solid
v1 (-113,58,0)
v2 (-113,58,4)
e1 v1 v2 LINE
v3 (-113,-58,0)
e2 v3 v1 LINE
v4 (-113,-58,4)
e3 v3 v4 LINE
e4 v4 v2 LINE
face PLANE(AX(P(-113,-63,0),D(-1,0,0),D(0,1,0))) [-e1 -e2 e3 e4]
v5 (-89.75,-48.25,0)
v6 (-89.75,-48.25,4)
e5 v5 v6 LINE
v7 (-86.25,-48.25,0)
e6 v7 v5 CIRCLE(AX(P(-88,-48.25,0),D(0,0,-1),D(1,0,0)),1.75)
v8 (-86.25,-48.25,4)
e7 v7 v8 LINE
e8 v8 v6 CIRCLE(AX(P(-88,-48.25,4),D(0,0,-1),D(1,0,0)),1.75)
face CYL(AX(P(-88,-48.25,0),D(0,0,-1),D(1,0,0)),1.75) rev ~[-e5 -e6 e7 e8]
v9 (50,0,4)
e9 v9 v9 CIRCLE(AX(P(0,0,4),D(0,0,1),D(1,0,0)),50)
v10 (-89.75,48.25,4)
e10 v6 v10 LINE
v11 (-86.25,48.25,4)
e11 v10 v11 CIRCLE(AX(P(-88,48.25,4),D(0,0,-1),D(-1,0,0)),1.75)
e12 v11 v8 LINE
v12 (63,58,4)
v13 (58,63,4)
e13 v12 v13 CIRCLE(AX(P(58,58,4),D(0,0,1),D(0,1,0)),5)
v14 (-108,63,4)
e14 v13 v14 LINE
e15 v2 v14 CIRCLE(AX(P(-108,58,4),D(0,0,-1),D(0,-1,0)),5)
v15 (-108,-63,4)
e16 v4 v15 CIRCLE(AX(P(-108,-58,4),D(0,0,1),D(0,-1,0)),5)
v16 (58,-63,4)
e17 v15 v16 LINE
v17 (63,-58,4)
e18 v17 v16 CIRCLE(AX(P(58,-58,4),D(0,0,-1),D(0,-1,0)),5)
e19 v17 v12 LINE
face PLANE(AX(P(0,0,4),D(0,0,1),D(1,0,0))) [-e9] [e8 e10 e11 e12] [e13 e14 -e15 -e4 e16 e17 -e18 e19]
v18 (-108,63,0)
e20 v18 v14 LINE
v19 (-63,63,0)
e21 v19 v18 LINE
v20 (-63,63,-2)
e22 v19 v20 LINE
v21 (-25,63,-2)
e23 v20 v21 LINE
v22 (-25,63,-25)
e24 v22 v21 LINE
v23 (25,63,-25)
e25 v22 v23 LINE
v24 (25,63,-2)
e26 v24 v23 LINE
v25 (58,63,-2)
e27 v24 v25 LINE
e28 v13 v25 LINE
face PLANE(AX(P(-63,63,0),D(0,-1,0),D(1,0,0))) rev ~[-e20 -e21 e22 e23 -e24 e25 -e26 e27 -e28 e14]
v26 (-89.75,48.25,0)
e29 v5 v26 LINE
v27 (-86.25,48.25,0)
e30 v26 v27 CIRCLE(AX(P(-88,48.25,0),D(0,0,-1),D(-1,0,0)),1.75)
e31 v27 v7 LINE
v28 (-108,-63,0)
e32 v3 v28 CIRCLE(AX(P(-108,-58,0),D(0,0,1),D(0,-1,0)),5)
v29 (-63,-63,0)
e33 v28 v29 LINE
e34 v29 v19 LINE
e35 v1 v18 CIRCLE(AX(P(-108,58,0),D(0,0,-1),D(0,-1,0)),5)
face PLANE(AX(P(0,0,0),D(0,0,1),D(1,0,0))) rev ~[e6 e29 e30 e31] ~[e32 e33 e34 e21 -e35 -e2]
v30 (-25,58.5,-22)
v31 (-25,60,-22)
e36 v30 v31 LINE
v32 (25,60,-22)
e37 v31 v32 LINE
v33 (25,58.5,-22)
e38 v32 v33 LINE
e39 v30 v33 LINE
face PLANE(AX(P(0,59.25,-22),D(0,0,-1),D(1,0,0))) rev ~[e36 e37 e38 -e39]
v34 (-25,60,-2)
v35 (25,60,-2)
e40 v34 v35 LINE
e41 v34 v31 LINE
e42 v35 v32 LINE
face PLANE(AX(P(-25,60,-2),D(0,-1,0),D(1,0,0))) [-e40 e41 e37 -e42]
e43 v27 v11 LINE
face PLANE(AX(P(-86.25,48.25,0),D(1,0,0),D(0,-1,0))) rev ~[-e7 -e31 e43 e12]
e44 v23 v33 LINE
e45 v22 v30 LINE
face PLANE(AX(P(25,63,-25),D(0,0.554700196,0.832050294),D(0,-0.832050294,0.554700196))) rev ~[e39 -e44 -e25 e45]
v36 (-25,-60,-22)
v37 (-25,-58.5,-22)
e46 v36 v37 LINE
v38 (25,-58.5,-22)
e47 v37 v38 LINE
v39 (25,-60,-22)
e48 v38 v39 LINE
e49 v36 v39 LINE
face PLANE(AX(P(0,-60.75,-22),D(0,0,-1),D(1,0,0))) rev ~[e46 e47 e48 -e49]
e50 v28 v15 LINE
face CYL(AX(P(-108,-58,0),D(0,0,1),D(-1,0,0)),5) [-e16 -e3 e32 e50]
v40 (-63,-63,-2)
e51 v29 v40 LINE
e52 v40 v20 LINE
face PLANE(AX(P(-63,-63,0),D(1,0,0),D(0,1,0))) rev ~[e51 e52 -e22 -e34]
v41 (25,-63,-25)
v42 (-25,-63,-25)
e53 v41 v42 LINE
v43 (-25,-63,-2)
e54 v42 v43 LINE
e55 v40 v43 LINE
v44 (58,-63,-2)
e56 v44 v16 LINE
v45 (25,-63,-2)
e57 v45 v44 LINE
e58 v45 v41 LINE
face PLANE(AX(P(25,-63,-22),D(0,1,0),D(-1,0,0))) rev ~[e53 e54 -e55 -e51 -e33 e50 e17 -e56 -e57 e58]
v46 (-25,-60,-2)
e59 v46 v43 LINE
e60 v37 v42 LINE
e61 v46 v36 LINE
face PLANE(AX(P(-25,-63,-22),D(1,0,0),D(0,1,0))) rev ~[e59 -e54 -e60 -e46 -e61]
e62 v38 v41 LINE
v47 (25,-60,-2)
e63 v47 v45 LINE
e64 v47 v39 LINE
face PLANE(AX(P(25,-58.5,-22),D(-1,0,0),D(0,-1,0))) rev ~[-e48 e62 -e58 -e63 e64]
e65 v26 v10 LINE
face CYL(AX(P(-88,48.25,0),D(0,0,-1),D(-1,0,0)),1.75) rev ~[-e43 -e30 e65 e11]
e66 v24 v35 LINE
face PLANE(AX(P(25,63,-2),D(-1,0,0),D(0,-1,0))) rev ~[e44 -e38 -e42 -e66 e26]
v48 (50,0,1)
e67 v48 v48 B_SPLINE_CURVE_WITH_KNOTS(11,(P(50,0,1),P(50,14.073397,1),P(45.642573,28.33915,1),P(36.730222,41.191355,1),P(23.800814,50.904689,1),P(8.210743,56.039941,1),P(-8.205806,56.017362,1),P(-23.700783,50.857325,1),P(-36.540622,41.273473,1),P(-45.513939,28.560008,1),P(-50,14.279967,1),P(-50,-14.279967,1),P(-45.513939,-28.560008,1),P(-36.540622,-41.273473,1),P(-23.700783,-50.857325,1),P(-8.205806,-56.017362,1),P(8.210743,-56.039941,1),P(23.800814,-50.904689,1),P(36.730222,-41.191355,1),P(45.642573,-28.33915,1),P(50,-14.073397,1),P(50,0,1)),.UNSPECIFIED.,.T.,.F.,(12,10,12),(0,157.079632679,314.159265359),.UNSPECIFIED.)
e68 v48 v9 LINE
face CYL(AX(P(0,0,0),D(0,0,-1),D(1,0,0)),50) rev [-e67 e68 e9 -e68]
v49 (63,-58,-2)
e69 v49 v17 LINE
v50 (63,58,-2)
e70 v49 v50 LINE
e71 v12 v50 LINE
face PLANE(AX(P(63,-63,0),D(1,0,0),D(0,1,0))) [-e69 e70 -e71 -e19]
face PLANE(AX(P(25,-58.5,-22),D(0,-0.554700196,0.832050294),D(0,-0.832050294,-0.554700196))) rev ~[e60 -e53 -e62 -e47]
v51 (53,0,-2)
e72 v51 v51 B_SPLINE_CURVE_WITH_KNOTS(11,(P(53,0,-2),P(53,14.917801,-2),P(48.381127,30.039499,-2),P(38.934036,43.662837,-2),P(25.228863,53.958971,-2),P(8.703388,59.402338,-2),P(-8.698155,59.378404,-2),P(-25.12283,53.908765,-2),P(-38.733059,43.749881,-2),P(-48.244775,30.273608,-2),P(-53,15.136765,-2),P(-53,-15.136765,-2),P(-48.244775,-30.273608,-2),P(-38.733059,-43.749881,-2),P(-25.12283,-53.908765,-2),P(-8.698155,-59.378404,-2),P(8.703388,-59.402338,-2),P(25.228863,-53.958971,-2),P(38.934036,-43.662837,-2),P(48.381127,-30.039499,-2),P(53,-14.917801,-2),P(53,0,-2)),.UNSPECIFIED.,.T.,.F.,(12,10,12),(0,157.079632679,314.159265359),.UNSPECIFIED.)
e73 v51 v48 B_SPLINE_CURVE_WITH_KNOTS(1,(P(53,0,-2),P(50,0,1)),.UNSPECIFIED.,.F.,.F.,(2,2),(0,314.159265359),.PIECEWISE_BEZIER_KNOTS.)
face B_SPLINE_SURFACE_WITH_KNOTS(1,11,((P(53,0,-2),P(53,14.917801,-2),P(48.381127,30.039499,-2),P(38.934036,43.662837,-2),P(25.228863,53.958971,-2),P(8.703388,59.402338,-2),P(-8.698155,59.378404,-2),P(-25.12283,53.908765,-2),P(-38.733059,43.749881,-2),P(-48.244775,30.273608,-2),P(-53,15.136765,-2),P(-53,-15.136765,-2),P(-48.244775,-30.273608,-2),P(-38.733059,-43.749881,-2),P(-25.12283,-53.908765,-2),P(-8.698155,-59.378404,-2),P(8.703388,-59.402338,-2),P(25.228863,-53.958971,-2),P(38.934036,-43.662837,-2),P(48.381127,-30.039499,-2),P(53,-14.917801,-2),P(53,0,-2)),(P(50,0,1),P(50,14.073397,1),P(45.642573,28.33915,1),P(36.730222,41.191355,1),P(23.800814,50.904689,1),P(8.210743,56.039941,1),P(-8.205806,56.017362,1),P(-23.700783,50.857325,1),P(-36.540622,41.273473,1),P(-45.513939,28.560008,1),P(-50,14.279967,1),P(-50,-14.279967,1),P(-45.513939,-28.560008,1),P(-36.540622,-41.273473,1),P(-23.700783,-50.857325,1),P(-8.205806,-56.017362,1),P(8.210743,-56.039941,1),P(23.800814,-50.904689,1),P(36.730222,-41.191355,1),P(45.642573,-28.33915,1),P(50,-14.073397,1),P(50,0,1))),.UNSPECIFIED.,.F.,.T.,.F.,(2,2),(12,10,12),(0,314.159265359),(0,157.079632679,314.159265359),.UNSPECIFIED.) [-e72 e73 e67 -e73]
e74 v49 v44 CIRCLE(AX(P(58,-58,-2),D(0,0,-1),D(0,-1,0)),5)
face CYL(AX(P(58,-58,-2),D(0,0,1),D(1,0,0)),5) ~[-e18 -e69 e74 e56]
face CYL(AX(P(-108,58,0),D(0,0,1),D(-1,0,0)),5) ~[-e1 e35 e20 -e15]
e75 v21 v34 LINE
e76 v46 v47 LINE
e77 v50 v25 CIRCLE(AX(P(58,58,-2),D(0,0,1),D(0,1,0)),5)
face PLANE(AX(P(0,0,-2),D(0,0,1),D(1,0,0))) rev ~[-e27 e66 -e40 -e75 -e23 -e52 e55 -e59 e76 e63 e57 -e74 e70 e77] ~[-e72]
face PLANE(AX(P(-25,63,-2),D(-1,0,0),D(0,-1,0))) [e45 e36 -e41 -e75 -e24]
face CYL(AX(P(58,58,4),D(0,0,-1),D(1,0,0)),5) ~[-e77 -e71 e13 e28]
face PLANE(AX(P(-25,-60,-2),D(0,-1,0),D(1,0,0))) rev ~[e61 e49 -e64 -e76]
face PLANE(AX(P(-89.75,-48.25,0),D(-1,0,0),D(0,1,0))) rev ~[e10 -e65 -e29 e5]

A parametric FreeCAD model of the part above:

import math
import FreeCAD as App
import Part
import Sketcher


def edges_at(feature, points):
    """Names of the edges that pass closest to the given points."""
    edges = feature.Shape.Edges
    near = lambda p: min(range(len(edges)), key=lambda i: edges[i].distToShape(Part.Vertex(*p))[0])
    return sorted({f"Edge{near(p) + 1}" for p in points})

doc = App.newDocument("Part")
body = doc.addObject("PartDesign::Body", "Body")

# Sketch on XY plane
sketch1 = doc.addObject("Sketcher::SketchObject", "Sketch")
body.addObject(sketch1)
sketch1.AttachmentSupport = (doc.XY_Plane, [""])
sketch1.MapMode = "FlatFace"
sketch1.addGeometry(Part.LineSegment(App.Vector(63, -63, 0), App.Vector(63, 63, 0)), False)
sketch1.addGeometry(Part.LineSegment(App.Vector(63, 63, 0), App.Vector(-113, 63, 0)), False)
sketch1.addGeometry(Part.LineSegment(App.Vector(-113, 63, 0), App.Vector(-113, -63, 0)), False)
sketch1.addGeometry(Part.LineSegment(App.Vector(-113, -63, 0), App.Vector(63, -63, 0)), False)
sketch1.addGeometry(Part.ArcOfCircle(Part.Circle(App.Vector(-88, 48.2, 0), App.Vector(0, 0, 1), 1.8), math.radians(0), math.radians(180)), False)
sketch1.addGeometry(Part.LineSegment(App.Vector(-86.2, 48.2, 0), App.Vector(-86.2, -48.2, 0)), False)
sketch1.addGeometry(Part.ArcOfCircle(Part.Circle(App.Vector(-88, -48.2, 0), App.Vector(0, 0, 1), 1.8), math.radians(180), math.radians(360)), False)
sketch1.addGeometry(Part.LineSegment(App.Vector(-89.8, -48.2, 0), App.Vector(-89.8, 48.2, 0)), False)
sketch1.addGeometry(Part.Circle(App.Vector(0, 0, 0), App.Vector(0, 0, 1), 50), False)
sketch1.addConstraint(Sketcher.Constraint("Coincident", 0, 2, 1, 1))
sketch1.addConstraint(Sketcher.Constraint("Coincident", 1, 2, 2, 1))
sketch1.addConstraint(Sketcher.Constraint("Coincident", 2, 2, 3, 1))
sketch1.addConstraint(Sketcher.Constraint("Coincident", 3, 2, 0, 1))
sketch1.addConstraint(Sketcher.Constraint("Tangent", 4, 1, 5, 1))
sketch1.addConstraint(Sketcher.Constraint("Tangent", 5, 2, 6, 2))
sketch1.addConstraint(Sketcher.Constraint("Tangent", 6, 1, 7, 1))
sketch1.addConstraint(Sketcher.Constraint("Tangent", 7, 2, 4, 2))
sketch1.addConstraint(Sketcher.Constraint("Vertical", 0))
sketch1.addConstraint(Sketcher.Constraint("Horizontal", 1))
sketch1.addConstraint(Sketcher.Constraint("Vertical", 2))
sketch1.addConstraint(Sketcher.Constraint("Horizontal", 3))
sketch1.addConstraint(Sketcher.Constraint("Vertical", 5))
sketch1.addConstraint(Sketcher.Constraint("Vertical", 7))
sketch1.addConstraint(Sketcher.Constraint("Coincident", 8, 3, -1, 1))
sketch1.addConstraint(Sketcher.Constraint("Diameter", 8, 100.0))
sketch1.addConstraint(Sketcher.Constraint("DistanceX", 1, 2, 1, 1, 176.0))
sketch1.addConstraint(Sketcher.Constraint("DistanceY", 0, 1, 0, 2, 126.0))
sketch1.addConstraint(Sketcher.Constraint("Radius", 4, 1.75))
sketch1.addConstraint(Sketcher.Constraint("DistanceY", 5, 2, 5, 1, 96.5))
sketch1.addConstraint(Sketcher.Constraint("DistanceX", 4, 3, -1, 1, 88.0))
sketch1.addConstraint(Sketcher.Constraint("DistanceX", -1, 1, 0, 2, 63.0))
sketch1.addConstraint(Sketcher.Constraint("DistanceY", -1, 1, 0, 2, 63.0))
sketch1.addConstraint(Sketcher.Constraint("DistanceY", -1, 1, 4, 3, 48.25))
pad1 = doc.addObject("PartDesign::Pad", "Pad")
body.addObject(pad1)
pad1.Profile = sketch1
pad1.Length = 4

# Sketch on XY plane
sketch2 = doc.addObject("Sketcher::SketchObject", "Sketch001")
body.addObject(sketch2)
sketch2.AttachmentSupport = (doc.XY_Plane, [""])
sketch2.MapMode = "FlatFace"
sketch2.addGeometry(Part.LineSegment(App.Vector(-63, 63, 0), App.Vector(-63, -63, 0)), False)
sketch2.addGeometry(Part.LineSegment(App.Vector(-63, -63, 0), App.Vector(63, -63, 0)), False)
sketch2.addGeometry(Part.LineSegment(App.Vector(63, -63, 0), App.Vector(63, 63, 0)), False)
sketch2.addGeometry(Part.LineSegment(App.Vector(63, 63, 0), App.Vector(-63, 63, 0)), False)
sketch2.addGeometry(Part.Circle(App.Vector(0, 0, 0), App.Vector(0, 0, 1), 50), False)
sketch2.addConstraint(Sketcher.Constraint("Coincident", 0, 2, 1, 1))
sketch2.addConstraint(Sketcher.Constraint("Coincident", 1, 2, 2, 1))
sketch2.addConstraint(Sketcher.Constraint("Coincident", 2, 2, 3, 1))
sketch2.addConstraint(Sketcher.Constraint("Coincident", 3, 2, 0, 1))
sketch2.addConstraint(Sketcher.Constraint("Vertical", 0))
sketch2.addConstraint(Sketcher.Constraint("Horizontal", 1))
sketch2.addConstraint(Sketcher.Constraint("Vertical", 2))
sketch2.addConstraint(Sketcher.Constraint("Horizontal", 3))
sketch2.addConstraint(Sketcher.Constraint("Coincident", 4, 3, -1, 1))
sketch2.addConstraint(Sketcher.Constraint("Symmetric", 0, 2, 2, 2, -1, 1))
sketch2.addConstraint(Sketcher.Constraint("Equal", 3, 0))
sketch2.addConstraint(Sketcher.Constraint("Diameter", 4, 100.0))
sketch2.addConstraint(Sketcher.Constraint("DistanceX", 1, 1, 1, 2, 126.0))
pad2 = doc.addObject("PartDesign::Pad", "Pad001")
body.addObject(pad2)
pad2.Profile = sketch2
pad2.Length = 2
pad2.Reversed = True
doc.recompute()

fillet = doc.addObject("PartDesign::Fillet", "Fillet")
body.addObject(fillet)
fillet.Base = (pad2, edges_at(pad2, [
    (-113, 63, 2),
    (-113, -63, 2),
    (63, 63, 1),
    (63, -63, 1),
]))
fillet.Radius = 5

# Sketch on XY plane
sketch3 = doc.addObject("Sketcher::SketchObject", "Sketch002")
body.addObject(sketch3)
sketch3.AttachmentSupport = (doc.XY_Plane, [""])
sketch3.MapMode = "FlatFace"
sketch3.AttachmentOffset = App.Placement(App.Vector(0, 0, -2), App.Rotation())
sketch3.addGeometry(Part.LineSegment(App.Vector(-25, -63, 0), App.Vector(-25, -60, 0)), False)
sketch3.addGeometry(Part.LineSegment(App.Vector(-25, -60, 0), App.Vector(25, -60, 0)), False)
sketch3.addGeometry(Part.LineSegment(App.Vector(25, -60, 0), App.Vector(25, -63, 0)), False)
sketch3.addGeometry(Part.LineSegment(App.Vector(25, -63, 0), App.Vector(-25, -63, 0)), False)
sketch3.addGeometry(Part.LineSegment(App.Vector(-25, 60, 0), App.Vector(-25, 63, 0)), False)
sketch3.addGeometry(Part.LineSegment(App.Vector(-25, 63, 0), App.Vector(25, 63, 0)), False)
sketch3.addGeometry(Part.LineSegment(App.Vector(25, 63, 0), App.Vector(25, 60, 0)), False)
sketch3.addGeometry(Part.LineSegment(App.Vector(25, 60, 0), App.Vector(-25, 60, 0)), False)
sketch3.addConstraint(Sketcher.Constraint("Coincident", 0, 2, 1, 1))
sketch3.addConstraint(Sketcher.Constraint("Coincident", 1, 2, 2, 1))
sketch3.addConstraint(Sketcher.Constraint("Coincident", 2, 2, 3, 1))
sketch3.addConstraint(Sketcher.Constraint("Coincident", 3, 2, 0, 1))
sketch3.addConstraint(Sketcher.Constraint("Coincident", 4, 2, 5, 1))
sketch3.addConstraint(Sketcher.Constraint("Coincident", 5, 2, 6, 1))
sketch3.addConstraint(Sketcher.Constraint("Coincident", 6, 2, 7, 1))
sketch3.addConstraint(Sketcher.Constraint("Coincident", 7, 2, 4, 1))
sketch3.addConstraint(Sketcher.Constraint("Vertical", 0))
sketch3.addConstraint(Sketcher.Constraint("Horizontal", 1))
sketch3.addConstraint(Sketcher.Constraint("Vertical", 2))
sketch3.addConstraint(Sketcher.Constraint("Horizontal", 3))
sketch3.addConstraint(Sketcher.Constraint("Vertical", 4))
sketch3.addConstraint(Sketcher.Constraint("Horizontal", 5))
sketch3.addConstraint(Sketcher.Constraint("Vertical", 6))
sketch3.addConstraint(Sketcher.Constraint("Horizontal", 7))
sketch3.addConstraint(Sketcher.Constraint("Symmetric", 2, 2, 4, 2, -1, 1))
sketch3.addConstraint(Sketcher.Constraint("Symmetric", 0, 2, 6, 2, -1, 1))
sketch3.addConstraint(Sketcher.Constraint("Vertical", 3, 2, 4, 2))
sketch3.addConstraint(Sketcher.Constraint("DistanceX", 1, 1, 1, 2, 50.0))
sketch3.addConstraint(Sketcher.Constraint("DistanceY", 0, 1, 0, 2, 3.0))
sketch3.addConstraint(Sketcher.Constraint("DistanceY", 0, 2, -1, 1, 60.0))
pad3 = doc.addObject("PartDesign::Pad", "Pad002")
body.addObject(pad3)
pad3.Profile = sketch3
pad3.Length = 20
pad3.Reversed = True

# Sketch on XY plane
sketch4 = doc.addObject("Sketcher::SketchObject", "Sketch003")
body.addObject(sketch4)
sketch4.AttachmentSupport = (doc.XY_Plane, [""])
sketch4.MapMode = "FlatFace"
sketch4.AttachmentOffset = App.Placement(App.Vector(0, 0, -22), App.Rotation())
sketch4.addGeometry(Part.LineSegment(App.Vector(-25, -58.5, 0), App.Vector(25, -58.5, 0)), False)
sketch4.addGeometry(Part.LineSegment(App.Vector(25, -58.5, 0), App.Vector(25, -63, 0)), False)
sketch4.addGeometry(Part.LineSegment(App.Vector(25, -63, 0), App.Vector(-25, -63, 0)), False)
sketch4.addGeometry(Part.LineSegment(App.Vector(-25, -63, 0), App.Vector(-25, -58.5, 0)), False)
sketch4.addGeometry(Part.LineSegment(App.Vector(-25, 58.5, 0), App.Vector(-25, 63, 0)), False)
sketch4.addGeometry(Part.LineSegment(App.Vector(-25, 63, 0), App.Vector(25, 63, 0)), False)
sketch4.addGeometry(Part.LineSegment(App.Vector(25, 63, 0), App.Vector(25, 58.5, 0)), False)
sketch4.addGeometry(Part.LineSegment(App.Vector(25, 58.5, 0), App.Vector(-25, 58.5, 0)), False)
sketch4.addConstraint(Sketcher.Constraint("Coincident", 0, 2, 1, 1))
sketch4.addConstraint(Sketcher.Constraint("Coincident", 1, 2, 2, 1))
sketch4.addConstraint(Sketcher.Constraint("Coincident", 2, 2, 3, 1))
sketch4.addConstraint(Sketcher.Constraint("Coincident", 3, 2, 0, 1))
sketch4.addConstraint(Sketcher.Constraint("Coincident", 4, 2, 5, 1))
sketch4.addConstraint(Sketcher.Constraint("Coincident", 5, 2, 6, 1))
sketch4.addConstraint(Sketcher.Constraint("Coincident", 6, 2, 7, 1))
sketch4.addConstraint(Sketcher.Constraint("Coincident", 7, 2, 4, 1))
sketch4.addConstraint(Sketcher.Constraint("Horizontal", 0))
sketch4.addConstraint(Sketcher.Constraint("Vertical", 1))
sketch4.addConstraint(Sketcher.Constraint("Horizontal", 2))
sketch4.addConstraint(Sketcher.Constraint("Vertical", 3))
sketch4.addConstraint(Sketcher.Constraint("Vertical", 4))
sketch4.addConstraint(Sketcher.Constraint("Horizontal", 5))
sketch4.addConstraint(Sketcher.Constraint("Vertical", 6))
sketch4.addConstraint(Sketcher.Constraint("Horizontal", 7))
sketch4.addConstraint(Sketcher.Constraint("Symmetric", 1, 2, 4, 2, -1, 1))
sketch4.addConstraint(Sketcher.Constraint("Symmetric", 3, 2, 6, 2, -1, 1))
sketch4.addConstraint(Sketcher.Constraint("Vertical", 3, 2, 4, 2))
sketch4.addConstraint(Sketcher.Constraint("DistanceX", 0, 1, 0, 2, 50.0))
sketch4.addConstraint(Sketcher.Constraint("DistanceY", 1, 2, 1, 1, 4.5))
sketch4.addConstraint(Sketcher.Constraint("DistanceY", 1, 2, -1, 1, 63.0))
pad4 = doc.addObject("PartDesign::Pad", "Pad003")
body.addObject(pad4)
pad4.Profile = sketch4
pad4.Length = 3
pad4.Reversed = True

# Sketch on YZ plane
sketch5 = doc.addObject("Sketcher::SketchObject", "Sketch004")
body.addObject(sketch5)
sketch5.AttachmentSupport = (doc.YZ_Plane, [""])
sketch5.MapMode = "FlatFace"
sketch5.AttachmentOffset = App.Placement(App.Vector(0, 0, 25), App.Rotation())
sketch5.addGeometry(Part.LineSegment(App.Vector(-58.5, -25, 0), App.Vector(-58.5, -22, 0)), False)
sketch5.addGeometry(Part.LineSegment(App.Vector(-58.5, -22, 0), App.Vector(-63, -25, 0)), False)
sketch5.addGeometry(Part.LineSegment(App.Vector(-63, -25, 0), App.Vector(-58.5, -25, 0)), False)
sketch5.addGeometry(Part.LineSegment(App.Vector(63, -25, 0), App.Vector(58.5, -22, 0)), False)
sketch5.addGeometry(Part.LineSegment(App.Vector(58.5, -22, 0), App.Vector(58.5, -25, 0)), False)
sketch5.addGeometry(Part.LineSegment(App.Vector(58.5, -25, 0), App.Vector(63, -25, 0)), False)
sketch5.addConstraint(Sketcher.Constraint("Coincident", 0, 2, 1, 1))
sketch5.addConstraint(Sketcher.Constraint("Coincident", 1, 2, 2, 1))
sketch5.addConstraint(Sketcher.Constraint("Coincident", 2, 2, 0, 1))
sketch5.addConstraint(Sketcher.Constraint("Coincident", 3, 2, 4, 1))
sketch5.addConstraint(Sketcher.Constraint("Coincident", 4, 2, 5, 1))
sketch5.addConstraint(Sketcher.Constraint("Coincident", 5, 2, 3, 1))
sketch5.addConstraint(Sketcher.Constraint("Vertical", 0))
sketch5.addConstraint(Sketcher.Constraint("Horizontal", 2))
sketch5.addConstraint(Sketcher.Constraint("Vertical", 4))
sketch5.addConstraint(Sketcher.Constraint("Horizontal", 5))
sketch5.addConstraint(Sketcher.Constraint("Symmetric", 0, 2, 3, 2, -2))
sketch5.addConstraint(Sketcher.Constraint("Symmetric", 1, 2, 5, 2, -2))
sketch5.addConstraint(Sketcher.Constraint("DistanceY", 0, 1, 0, 2, 3.0))
sketch5.addConstraint(Sketcher.Constraint("DistanceX", 2, 1, 2, 2, 4.5))
sketch5.addConstraint(Sketcher.Constraint("DistanceY", 0, 2, -1, 1, 22.0))
sketch5.addConstraint(Sketcher.Constraint("DistanceX", 1, 2, -1, 1, 63.0))
pocket1 = doc.addObject("PartDesign::Pocket", "Pocket")
body.addObject(pocket1)
pocket1.Profile = sketch5
pocket1.Type = "ThroughAll"
doc.recompute()

chamfer = doc.addObject("PartDesign::Chamfer", "Chamfer")
body.addObject(chamfer)
chamfer.Base = (pocket1, edges_at(pocket1, [(-50, 0, -2)]))
chamfer.Size = 3

doc.recompute()
